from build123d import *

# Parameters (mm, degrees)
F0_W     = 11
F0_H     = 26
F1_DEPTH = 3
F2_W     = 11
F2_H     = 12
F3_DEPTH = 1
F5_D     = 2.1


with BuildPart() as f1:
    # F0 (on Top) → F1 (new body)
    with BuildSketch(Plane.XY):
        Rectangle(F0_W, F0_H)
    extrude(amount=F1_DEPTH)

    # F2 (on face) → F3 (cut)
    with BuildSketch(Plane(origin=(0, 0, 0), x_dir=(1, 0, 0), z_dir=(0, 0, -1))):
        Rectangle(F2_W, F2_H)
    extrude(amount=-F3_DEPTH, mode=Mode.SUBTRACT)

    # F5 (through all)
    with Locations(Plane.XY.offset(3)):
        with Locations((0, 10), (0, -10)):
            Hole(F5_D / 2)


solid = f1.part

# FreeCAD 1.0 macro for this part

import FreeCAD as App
import Part
import Sketcher
from FreeCAD import Vector
Q = App.Units.Quantity


def add_polygon(sketch, points):
    """Adds a closed chain of lines whose ends are joined by coincident constraints."""
    first, n = sketch.GeometryCount, len(points)
    for a, b in zip(points, points[1:] + points[:1]):
        sketch.addGeometry(Part.LineSegment(App.Vector(*a, 0), App.Vector(*b, 0)), False)
    for i in range(n):
        sketch.addConstraint(Sketcher.Constraint("Coincident", first + i, 2, first + (i + 1) % n, 1))

doc = App.newDocument("Part")
params = doc.addObject("Spreadsheet::Sheet", "Params")
for row, (alias, value) in enumerate([
    ("sketch1_width", "11 mm"),
    ("sketch1_height", "26 mm"),
    ("pad1_length", "3 mm"),
    ("sketch2_width", "11 mm"),
    ("sketch2_height", "12 mm"),
    ("pocket1_length", "1 mm"),
    ("sketch3_diameter", "2.1 mm"),
    ("hole_diameter", "2.1 mm"),
], start=1):
    params.set(f"A{row}", alias)
    params.set(f"B{row}", "=" + value)
    params.setAlias(f"B{row}", alias)

body = doc.addObject("PartDesign::Body", "Body")

sketch1 = doc.addObject("Sketcher::SketchObject", "Sketch")
body.addObject(sketch1)
sketch1.AttachmentSupport = (doc.XY_Plane, [""])
sketch1.MapMode = "FlatFace"
add_polygon(sketch1, [(-5.5, 13), (-5.5, -13), (5.5, -13), (5.5, 13)])
sketch1.addConstraint([
    Sketcher.Constraint("Vertical", 0),
    Sketcher.Constraint("Horizontal", 1),
    Sketcher.Constraint("Vertical", 2),
    Sketcher.Constraint("Horizontal", 3),
    Sketcher.Constraint("Symmetric", 0, 2, 2, 2, -1, 1),
    Sketcher.Constraint("DistanceX", 1, 1, 1, 2, Q("11 mm")),
    Sketcher.Constraint("DistanceY", 0, 2, 0, 1, Q("26 mm")),
])
sketch1.setExpression("Constraints[9]", "Params.sketch1_width")
sketch1.setExpression("Constraints[10]", "Params.sketch1_height")
pad1 = doc.addObject("PartDesign::Pad", "Pad")
body.addObject(pad1)
pad1.Profile = sketch1
pad1.setExpression("Length", "Params.pad1_length")

sketch2 = doc.addObject("Sketcher::SketchObject", "Sketch001")
body.addObject(sketch2)
sketch2.AttachmentSupport = (doc.XY_Plane, [""])
sketch2.MapMode = "FlatFace"
add_polygon(sketch2, [(-5.5, -6), (-5.5, 6), (5.5, 6), (5.5, -6)])
sketch2.addConstraint([
    Sketcher.Constraint("Vertical", 0),
    Sketcher.Constraint("Horizontal", 1),
    Sketcher.Constraint("Vertical", 2),
    Sketcher.Constraint("Horizontal", 3),
    Sketcher.Constraint("Symmetric", 0, 2, 2, 2, -1, 1),
    Sketcher.Constraint("DistanceX", 1, 1, 1, 2, Q("11 mm")),
    Sketcher.Constraint("DistanceY", 0, 1, 0, 2, Q("12 mm")),
])
sketch2.setExpression("Constraints[9]", "Params.sketch2_width")
sketch2.setExpression("Constraints[10]", "Params.sketch2_height")
pocket1 = doc.addObject("PartDesign::Pocket", "Pocket")
body.addObject(pocket1)
pocket1.Profile = sketch2
pocket1.setExpression("Length", "Params.pocket1_length")
pocket1.Reversed = True

sketch3 = doc.addObject("Sketcher::SketchObject", "Sketch002")
body.addObject(sketch3)
sketch3.AttachmentSupport = (doc.XY_Plane, [""])
sketch3.MapMode = "FlatFace"
sketch3.AttachmentOffset = App.Placement(Vector(0, 0, 3), App.Rotation())
sketch3.addGeometry([
    Part.Circle(Vector(0, 10, 0), Vector(0, 0, 1), 1.05),
    Part.Circle(Vector(0, -10, 0), Vector(0, 0, 1), 1.05),
], False)
sketch3.addConstraint([
    Sketcher.Constraint("Equal", 0, 1),
    Sketcher.Constraint("Symmetric", 0, 3, 1, 3, -1, 1),
    Sketcher.Constraint("PointOnObject", 0, 3, -2),
    Sketcher.Constraint("Diameter", 0, Q("2.1 mm")),
    Sketcher.Constraint("DistanceY", -1, 1, 0, 3, Q("10 mm")),
])
sketch3.setExpression("Constraints[3]", "Params.sketch3_diameter")
doc.recompute()
hole = doc.addObject("PartDesign::Hole", "Hole")
body.addObject(hole)
hole.Profile = sketch3
hole.ThreadType = "None"
hole.setExpression("Diameter", "Params.hole_diameter")
hole.DepthType = "ThroughAll"

doc.recompute()
